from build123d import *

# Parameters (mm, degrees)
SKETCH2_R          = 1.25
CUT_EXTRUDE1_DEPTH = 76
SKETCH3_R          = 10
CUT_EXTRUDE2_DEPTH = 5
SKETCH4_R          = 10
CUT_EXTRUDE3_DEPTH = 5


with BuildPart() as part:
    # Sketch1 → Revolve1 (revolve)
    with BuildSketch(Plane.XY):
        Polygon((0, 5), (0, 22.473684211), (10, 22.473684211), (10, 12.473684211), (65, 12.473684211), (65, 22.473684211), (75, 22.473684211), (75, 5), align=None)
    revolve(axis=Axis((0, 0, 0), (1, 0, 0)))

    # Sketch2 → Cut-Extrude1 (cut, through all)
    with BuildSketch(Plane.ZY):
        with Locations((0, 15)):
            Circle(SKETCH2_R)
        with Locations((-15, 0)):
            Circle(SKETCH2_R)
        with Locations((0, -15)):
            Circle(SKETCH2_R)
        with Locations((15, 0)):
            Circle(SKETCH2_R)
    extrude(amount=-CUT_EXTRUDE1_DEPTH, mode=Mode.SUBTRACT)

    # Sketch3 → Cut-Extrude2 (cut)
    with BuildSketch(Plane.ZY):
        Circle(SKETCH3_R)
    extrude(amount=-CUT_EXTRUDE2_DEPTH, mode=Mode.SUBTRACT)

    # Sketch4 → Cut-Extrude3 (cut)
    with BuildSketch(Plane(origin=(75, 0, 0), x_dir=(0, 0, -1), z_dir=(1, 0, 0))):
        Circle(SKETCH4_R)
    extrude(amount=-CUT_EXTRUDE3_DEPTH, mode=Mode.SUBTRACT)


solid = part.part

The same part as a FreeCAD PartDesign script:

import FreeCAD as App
import Part
import Sketcher

V = App.Vector
Q = App.Units.Quantity

doc = App.newDocument("Part")
body = doc.addObject("PartDesign::Body", "Body")

# Sketch on XY plane
sketch1 = body.newObject("Sketcher::SketchObject", "Sketch")
sketch1.AttachmentSupport = (doc.getObject("XY_Plane"), [""])
sketch1.MapMode = "FlatFace"
sketch1.addGeometry([
    Part.LineSegment(V(0, 22.473684, 0), V(0, 5, 0)),  # 0
    Part.LineSegment(V(0, 5, 0), V(75, 5, 0)),  # 1
    Part.LineSegment(V(75, 5, 0), V(75, 22.473684, 0)),  # 2
    Part.LineSegment(V(75, 22.473684, 0), V(65, 22.473684, 0)),  # 3
    Part.LineSegment(V(65, 22.473684, 0), V(65, 12.473684, 0)),  # 4
    Part.LineSegment(V(65, 12.473684, 0), V(10, 12.473684, 0)),  # 5
    Part.LineSegment(V(10, 12.473684, 0), V(10, 22.473684, 0)),  # 6
    Part.LineSegment(V(10, 22.473684, 0), V(0, 22.473684, 0)),  # 7
], False)
sketch1.addConstraint([
    Sketcher.Constraint("Coincident", 0, 2, 1, 1),
    Sketcher.Constraint("Coincident", 1, 2, 2, 1),
    Sketcher.Constraint("Coincident", 2, 2, 3, 1),
    Sketcher.Constraint("Coincident", 3, 2, 4, 1),
    Sketcher.Constraint("Coincident", 4, 2, 5, 1),
    Sketcher.Constraint("Coincident", 5, 2, 6, 1),
    Sketcher.Constraint("Coincident", 6, 2, 7, 1),
    Sketcher.Constraint("Coincident", 7, 2, 0, 1),
    Sketcher.Constraint("Vertical", 0),
    Sketcher.Constraint("Horizontal", 1),
    Sketcher.Constraint("Vertical", 2),
    Sketcher.Constraint("Horizontal", 3),
    Sketcher.Constraint("Vertical", 4),
    Sketcher.Constraint("Horizontal", 5),
    Sketcher.Constraint("Vertical", 6),
    Sketcher.Constraint("Horizontal", 7),
    Sketcher.Constraint("PointOnObject", 0, 2, -2),
    Sketcher.Constraint("Horizontal", 3, 2, 6, 2),
    Sketcher.Constraint("Equal", 3, 7),
    Sketcher.Constraint("Equal", 7, 4),
    Sketcher.Constraint("DistanceX", 1, 1, 1, 2, Q("75 mm")),
    Sketcher.Constraint("DistanceX", 3, 2, 3, 1, Q("10 mm")),
    Sketcher.Constraint("DistanceY", -1, 1, 0, 2, Q("5 mm")),
    Sketcher.Constraint("DistanceY", 0, 2, 0, 1, Q("17.473684 mm")),
])
revolution = body.newObject("PartDesign::Revolution", "Revolution")
revolution.Profile = sketch1
revolution.ReferenceAxis = (sketch1, ["H_Axis"])
revolution.Angle = 360

# Sketch on YZ plane
sketch2 = body.newObject("Sketcher::SketchObject", "Sketch001")
sketch2.AttachmentSupport = (doc.getObject("YZ_Plane"), [""])
sketch2.MapMode = "FlatFace"
sketch2.addGeometry([
    Part.Circle(V(15, 0, 0), V(0, 0, 1), 1.25),
    Part.Circle(V(0, -15, 0), V(0, 0, 1), 1.25),
    Part.Circle(V(-15, 0, 0), V(0, 0, 1), 1.25),
    Part.Circle(V(0, 15, 0), V(0, 0, 1), 1.25),
], False)
sketch2.addConstraint([
    Sketcher.Constraint("Equal", 0, 1),
    Sketcher.Constraint("Equal", 1, 2),
    Sketcher.Constraint("Equal", 2, 3),
    Sketcher.Constraint("Symmetric", 0, 3, 2, 3, -1, 1),
    Sketcher.Constraint("Symmetric", 1, 3, 3, 3, -1, 1),
    Sketcher.Constraint("PointOnObject", 0, 3, -1),
    Sketcher.Constraint("PointOnObject", 1, 3, -2),
    Sketcher.Constraint("Diameter", 0, Q("2.5 mm")),
    Sketcher.Constraint("DistanceX", -1, 1, 0, 3, Q("15 mm")),
    Sketcher.Constraint("DistanceY", 1, 3, -1, 1, Q("15 mm")),
])
pocket1 = body.newObject("PartDesign::Pocket", "Pocket")
pocket1.Profile = sketch2
pocket1.Type = "ThroughAll"
pocket1.Reversed = True

# Sketch on YZ plane
sketch3 = body.newObject("Sketcher::SketchObject", "Sketch002")
sketch3.AttachmentSupport = (doc.getObject("YZ_Plane"), [""])
sketch3.MapMode = "FlatFace"
sketch3.addGeometry(Part.Circle(V(0, 0, 0), V(0, 0, 1), 10), False)
sketch3.addConstraint([
    Sketcher.Constraint("Coincident", 0, 3, -1, 1),
    Sketcher.Constraint("Diameter", 0, Q("20 mm")),
])
pocket2 = body.newObject("PartDesign::Pocket", "Pocket001")
pocket2.Profile = sketch3
pocket2.Length = 5
pocket2.Reversed = True

# Sketch on YZ plane
sketch4 = body.newObject("Sketcher::SketchObject", "Sketch003")
sketch4.AttachmentSupport = (doc.getObject("YZ_Plane"), [""])
sketch4.MapMode = "FlatFace"
sketch4.AttachmentOffset = App.Placement(V(0, 0, 75), App.Rotation())
sketch4.addGeometry(Part.Circle(V(0, 0, 0), V(0, 0, 1), 10), False)
sketch4.addConstraint([
    Sketcher.Constraint("Coincident", 0, 3, -1, 1),
    Sketcher.Constraint("Diameter", 0, Q("20 mm")),
])
pocket3 = body.newObject("PartDesign::Pocket", "Pocket002")
pocket3.Profile = sketch4
pocket3.Length = 5

doc.recompute()
